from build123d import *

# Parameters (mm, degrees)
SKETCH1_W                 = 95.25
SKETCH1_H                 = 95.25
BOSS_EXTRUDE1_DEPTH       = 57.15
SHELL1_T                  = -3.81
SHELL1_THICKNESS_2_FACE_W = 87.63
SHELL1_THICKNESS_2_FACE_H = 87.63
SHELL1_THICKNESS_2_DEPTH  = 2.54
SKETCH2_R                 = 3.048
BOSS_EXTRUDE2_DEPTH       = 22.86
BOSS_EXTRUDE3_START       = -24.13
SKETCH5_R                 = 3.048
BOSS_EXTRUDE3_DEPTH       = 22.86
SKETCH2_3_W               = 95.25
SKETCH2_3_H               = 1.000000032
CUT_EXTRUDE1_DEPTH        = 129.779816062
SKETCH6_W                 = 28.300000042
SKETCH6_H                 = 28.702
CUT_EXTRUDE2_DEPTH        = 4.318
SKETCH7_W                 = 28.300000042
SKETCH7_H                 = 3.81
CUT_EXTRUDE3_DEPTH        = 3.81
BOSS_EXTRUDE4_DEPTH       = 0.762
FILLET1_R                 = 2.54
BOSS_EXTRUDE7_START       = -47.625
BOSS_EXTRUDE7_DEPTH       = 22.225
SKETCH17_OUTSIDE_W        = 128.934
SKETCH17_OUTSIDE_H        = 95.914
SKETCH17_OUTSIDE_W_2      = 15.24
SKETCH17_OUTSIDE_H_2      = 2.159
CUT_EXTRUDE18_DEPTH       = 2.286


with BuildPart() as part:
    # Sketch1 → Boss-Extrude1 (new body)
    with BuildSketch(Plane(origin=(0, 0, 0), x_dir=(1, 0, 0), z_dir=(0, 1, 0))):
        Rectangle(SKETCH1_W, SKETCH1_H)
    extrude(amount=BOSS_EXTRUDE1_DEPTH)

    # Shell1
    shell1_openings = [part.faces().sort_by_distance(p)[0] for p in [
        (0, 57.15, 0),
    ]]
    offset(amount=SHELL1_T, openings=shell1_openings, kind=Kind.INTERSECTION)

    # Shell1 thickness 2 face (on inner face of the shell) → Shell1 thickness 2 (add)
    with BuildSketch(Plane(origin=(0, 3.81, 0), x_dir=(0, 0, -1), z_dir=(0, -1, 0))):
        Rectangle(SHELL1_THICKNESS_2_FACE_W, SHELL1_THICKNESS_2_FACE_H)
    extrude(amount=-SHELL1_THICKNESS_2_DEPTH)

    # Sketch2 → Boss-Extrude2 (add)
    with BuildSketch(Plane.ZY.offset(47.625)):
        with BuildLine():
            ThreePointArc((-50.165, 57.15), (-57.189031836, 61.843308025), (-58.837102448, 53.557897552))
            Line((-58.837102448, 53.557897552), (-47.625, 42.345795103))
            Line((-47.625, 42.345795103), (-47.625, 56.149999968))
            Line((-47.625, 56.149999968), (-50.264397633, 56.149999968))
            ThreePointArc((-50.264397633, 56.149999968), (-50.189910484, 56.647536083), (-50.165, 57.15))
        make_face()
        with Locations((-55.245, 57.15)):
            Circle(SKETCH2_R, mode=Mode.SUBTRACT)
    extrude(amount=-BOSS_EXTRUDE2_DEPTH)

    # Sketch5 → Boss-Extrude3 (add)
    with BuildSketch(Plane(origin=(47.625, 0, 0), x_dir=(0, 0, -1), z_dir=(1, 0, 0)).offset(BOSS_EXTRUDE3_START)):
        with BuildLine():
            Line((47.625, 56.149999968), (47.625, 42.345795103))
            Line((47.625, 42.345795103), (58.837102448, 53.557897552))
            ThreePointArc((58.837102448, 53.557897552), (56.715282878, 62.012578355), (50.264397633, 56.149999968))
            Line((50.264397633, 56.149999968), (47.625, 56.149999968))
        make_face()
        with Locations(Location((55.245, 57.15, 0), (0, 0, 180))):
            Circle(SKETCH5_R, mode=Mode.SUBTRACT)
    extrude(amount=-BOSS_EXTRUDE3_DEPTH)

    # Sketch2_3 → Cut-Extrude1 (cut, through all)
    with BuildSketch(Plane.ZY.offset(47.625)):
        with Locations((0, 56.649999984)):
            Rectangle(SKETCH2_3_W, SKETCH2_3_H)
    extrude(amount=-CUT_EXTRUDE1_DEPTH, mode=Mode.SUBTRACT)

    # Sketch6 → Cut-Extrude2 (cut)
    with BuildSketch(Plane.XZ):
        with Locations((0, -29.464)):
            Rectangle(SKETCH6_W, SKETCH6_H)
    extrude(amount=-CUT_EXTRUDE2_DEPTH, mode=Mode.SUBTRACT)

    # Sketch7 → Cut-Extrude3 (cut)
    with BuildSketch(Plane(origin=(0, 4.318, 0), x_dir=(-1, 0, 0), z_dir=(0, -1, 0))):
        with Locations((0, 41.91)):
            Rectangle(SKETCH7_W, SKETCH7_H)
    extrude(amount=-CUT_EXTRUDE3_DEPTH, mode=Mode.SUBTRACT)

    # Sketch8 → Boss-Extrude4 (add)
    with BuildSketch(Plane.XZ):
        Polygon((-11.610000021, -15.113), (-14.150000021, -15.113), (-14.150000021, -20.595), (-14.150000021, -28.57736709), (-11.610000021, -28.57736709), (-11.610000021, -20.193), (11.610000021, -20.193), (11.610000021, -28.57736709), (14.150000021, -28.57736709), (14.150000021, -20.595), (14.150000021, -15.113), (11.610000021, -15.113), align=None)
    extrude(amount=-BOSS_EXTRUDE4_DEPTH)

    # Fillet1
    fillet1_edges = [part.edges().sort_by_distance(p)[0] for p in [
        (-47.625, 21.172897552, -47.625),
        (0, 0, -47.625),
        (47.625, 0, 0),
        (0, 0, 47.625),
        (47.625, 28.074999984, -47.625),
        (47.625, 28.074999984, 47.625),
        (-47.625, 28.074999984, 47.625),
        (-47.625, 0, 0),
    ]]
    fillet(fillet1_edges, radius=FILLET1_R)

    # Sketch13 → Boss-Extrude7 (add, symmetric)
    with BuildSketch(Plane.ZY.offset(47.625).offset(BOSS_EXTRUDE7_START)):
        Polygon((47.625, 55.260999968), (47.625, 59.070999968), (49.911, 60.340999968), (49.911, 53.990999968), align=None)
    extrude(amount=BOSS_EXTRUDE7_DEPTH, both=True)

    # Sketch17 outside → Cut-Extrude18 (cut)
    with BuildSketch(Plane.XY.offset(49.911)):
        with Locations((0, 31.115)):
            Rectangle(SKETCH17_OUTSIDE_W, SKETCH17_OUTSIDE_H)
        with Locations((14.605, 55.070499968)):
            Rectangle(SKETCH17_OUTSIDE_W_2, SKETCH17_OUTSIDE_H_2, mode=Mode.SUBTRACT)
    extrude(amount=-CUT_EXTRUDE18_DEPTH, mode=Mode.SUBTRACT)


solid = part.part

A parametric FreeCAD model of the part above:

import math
import FreeCAD as App
import Part
import Sketcher
from FreeCAD import Vector
Q = App.Units.Quantity


def edges_at(feature, points):
    """Names of the edges that pass closest to the given points."""
    edges = feature.Shape.Edges
    near = lambda p: min(range(len(edges)), key=lambda i: edges[i].distToShape(Part.Vertex(*p))[0])
    return sorted({f"Edge{near(p) + 1}" for p in points})


def faces_at(feature, points):
    """Names of the faces that lie closest to the given points."""
    faces = feature.Shape.Faces
    near = lambda p: min(range(len(faces)), key=lambda i: faces[i].distToShape(Part.Vertex(*p))[0])
    return sorted({f"Face{near(p) + 1}" for p in points})


def add_polygon(sketch, points):
    """Adds a closed chain of lines whose ends are joined by coincident constraints."""
    first, n = sketch.GeometryCount, len(points)
    for a, b in zip(points, points[1:] + points[:1]):
        sketch.addGeometry(Part.LineSegment(App.Vector(*a, 0), App.Vector(*b, 0)), False)
    for i in range(n):
        sketch.addConstraint(Sketcher.Constraint("Coincident", first + i, 2, first + (i + 1) % n, 1))

doc = App.newDocument("Part")
body = doc.addObject("PartDesign::Body", "Body")

# Sketch on XZ plane
sketch1 = body.newObject("Sketcher::SketchObject", "Sketch")
sketch1.AttachmentSupport = (doc.getObject("XZ_Plane"), [""])
sketch1.MapMode = "FlatFace"
add_polygon(sketch1, [(-47.625, -47.625), (-47.625, 47.625), (47.625, 47.625), (47.625, -47.625)])  # lines 0-3
sketch1.addConstraint(Sketcher.Constraint("Vertical", 0))
sketch1.addConstraint(Sketcher.Constraint("Horizontal", 1))
sketch1.addConstraint(Sketcher.Constraint("Vertical", 2))
sketch1.addConstraint(Sketcher.Constraint("Horizontal", 3))
sketch1.addConstraint(Sketcher.Constraint("Symmetric", 0, 2, 2, 2, -1, 1))
sketch1.addConstraint(Sketcher.Constraint("Equal", 3, 0))
sketch1.addConstraint(Sketcher.Constraint("DistanceX", 1, 1, 1, 2, Q("3.75 in")))
pad1 = body.newObject("PartDesign::Pad", "Pad")
pad1.Profile = sketch1
pad1.Length = Q("2.25 in")
pad1.Reversed = True
doc.recompute()

thickness = body.newObject("PartDesign::Thickness", "Thickness")
thickness.Base = (pad1, faces_at(pad1, [(0, 57.15, 0)]))
thickness.Value = Q("0.15 in")
thickness.Reversed = True
thickness.Join = "Intersection"

# Sketch on XZ plane
sketch2 = body.newObject("Sketcher::SketchObject", "Sketch001")
sketch2.AttachmentSupport = (doc.getObject("XZ_Plane"), [""])
sketch2.MapMode = "FlatFace"
sketch2.AttachmentOffset = App.Placement(Vector(0, 0, -0.15 * 25.4), App.Rotation())
add_polygon(sketch2, [(43.815, 43.815), (-43.815, 43.815), (-43.815, -43.815), (43.815, -43.815)])  # lines 0-3
sketch2.addConstraint(Sketcher.Constraint("Horizontal", 0))
sketch2.addConstraint(Sketcher.Constraint("Vertical", 1))
sketch2.addConstraint(Sketcher.Constraint("Horizontal", 2))
sketch2.addConstraint(Sketcher.Constraint("Vertical", 3))
sketch2.addConstraint(Sketcher.Constraint("Symmetric", 0, 2, 2, 2, -1, 1))
sketch2.addConstraint(Sketcher.Constraint("Equal", 2, 1))
sketch2.addConstraint(Sketcher.Constraint("DistanceX", 0, 2, 0, 1, Q("3.45 in")))
pad2 = body.newObject("PartDesign::Pad", "Pad001")
pad2.Profile = sketch2
pad2.Length = Q("0.1 in")
pad2.Reversed = True

# Sketch on YZ plane
sketch3 = body.newObject("Sketcher::SketchObject", "Sketch002")
sketch3.AttachmentSupport = (doc.getObject("YZ_Plane"), [""])
sketch3.MapMode = "FlatFace"
sketch3.AttachmentOffset = App.Placement(Vector(0, 0, -1.875 * 25.4), App.Rotation())
sketch3.addGeometry(Part.ArcOfCircle(Part.Circle(Vector(57.15, -55.245, 0), Vector(0, 0, 1), 5.08), math.radians(-135), math.radians(90)), False)
sketch3.addGeometry(Part.LineSegment(Vector(53.557898, -58.837102, 0), Vector(42.345795, -47.625, 0)), False)
sketch3.addGeometry(Part.LineSegment(Vector(42.345795, -47.625, 0), Vector(56.15, -47.625, 0)), False)
sketch3.addGeometry(Part.LineSegment(Vector(56.15, -47.625, 0), Vector(56.15, -50.264398, 0)), False)
sketch3.addGeometry(Part.ArcOfCircle(Part.Circle(Vector(57.15, -55.245, 0), Vector(0, 0, 1), 5.08), math.radians(90), math.radians(101.352839)), False)
sketch3.addGeometry(Part.Circle(Vector(57.15, -55.245, 0), Vector(0, 0, 1), 3.048), False)
sketch3.addConstraint(Sketcher.Constraint("Tangent", 0, 1, 1, 1))
sketch3.addConstraint(Sketcher.Constraint("Coincident", 1, 2, 2, 1))
sketch3.addConstraint(Sketcher.Constraint("Coincident", 2, 2, 3, 1))
sketch3.addConstraint(Sketcher.Constraint("Coincident", 3, 2, 4, 2))
sketch3.addConstraint(Sketcher.Constraint("Tangent", 4, 1, 0, 2))
sketch3.addConstraint(Sketcher.Constraint("Horizontal", 2))
sketch3.addConstraint(Sketcher.Constraint("Vertical", 3))
sketch3.addConstraint(Sketcher.Constraint("Coincident", 5, 3, 0, 3))
sketch3.addConstraint(Sketcher.Constraint("Equal", 0, 4))
sketch3.addConstraint(Sketcher.Constraint("Vertical", 5, 3, 4, 1))
sketch3.addConstraint(Sketcher.Constraint("Radius", 0, Q("0.2 in")))
sketch3.addConstraint(Sketcher.Constraint("Diameter", 5, Q("0.24 in")))
sketch3.addConstraint(Sketcher.Constraint("Angle", 1, Q("135 deg")))
sketch3.addConstraint(Sketcher.Constraint("DistanceY", 4, 3, 1, 2, Q("0.3 in")))
sketch3.addConstraint(Sketcher.Constraint("DistanceX", -1, 1, 0, 3, Q("2.25 in")))
sketch3.addConstraint(Sketcher.Constraint("DistanceY", 0, 3, -1, 1, Q("2.175 in")))
sketch3.addConstraint(Sketcher.Constraint("DistanceX", -1, 1, 2, 2, Q("56.15 mm")))
pad3 = body.newObject("PartDesign::Pad", "Pad002")
pad3.Profile = sketch3
pad3.Length = Q("0.9 in")

# Sketch on YZ plane
sketch4 = body.newObject("Sketcher::SketchObject", "Sketch003")
sketch4.AttachmentSupport = (doc.getObject("YZ_Plane"), [""])
sketch4.MapMode = "FlatFace"
sketch4.AttachmentOffset = App.Placement(Vector(0, 0, 0.925 * 25.4), App.Rotation())
sketch4.addGeometry(Part.LineSegment(Vector(56.15, -47.625, 0), Vector(42.345795, -47.625, 0)), False)
sketch4.addGeometry(Part.LineSegment(Vector(42.345795, -47.625, 0), Vector(53.557898, -58.837102, 0)), False)
sketch4.addGeometry(Part.ArcOfCircle(Part.Circle(Vector(57.15, -55.245, 0), Vector(0, 0, 1), 5.08), math.radians(-135), math.radians(101.352839)), False)
sketch4.addGeometry(Part.LineSegment(Vector(56.15, -50.264398, 0), Vector(56.15, -47.625, 0)), False)
sketch4.addGeometry(Part.Circle(Vector(57.15, -55.245, 0), Vector(0, 0, 1), 3.048), False)
sketch4.addConstraint(Sketcher.Constraint("Coincident", 0, 2, 1, 1))
sketch4.addConstraint(Sketcher.Constraint("Tangent", 1, 2, 2, 1))
sketch4.addConstraint(Sketcher.Constraint("Coincident", 2, 2, 3, 1))
sketch4.addConstraint(Sketcher.Constraint("Coincident", 3, 2, 0, 1))
sketch4.addConstraint(Sketcher.Constraint("Horizontal", 0))
sketch4.addConstraint(Sketcher.Constraint("Vertical", 3))
sketch4.addConstraint(Sketcher.Constraint("Coincident", 4, 3, 2, 3))
sketch4.addConstraint(Sketcher.Constraint("Radius", 2, Q("0.2 in")))
sketch4.addConstraint(Sketcher.Constraint("Diameter", 4, Q("0.24 in")))
sketch4.addConstraint(Sketcher.Constraint("Angle", 1, Q("-45 deg")))
sketch4.addConstraint(Sketcher.Constraint("DistanceY", 2, 3, 0, 2, Q("0.3 in")))
sketch4.addConstraint(Sketcher.Constraint("DistanceX", -1, 1, 2, 3, Q("2.25 in")))
sketch4.addConstraint(Sketcher.Constraint("DistanceY", 2, 3, -1, 1, Q("2.175 in")))
sketch4.addConstraint(Sketcher.Constraint("DistanceX", -1, 1, 2, 2, Q("56.15 mm")))
pad4 = body.newObject("PartDesign::Pad", "Pad003")
pad4.Profile = sketch4
pad4.Length = Q("0.9 in")
pad4.Reversed = True

# Sketch on YZ plane
sketch5 = body.newObject("Sketcher::SketchObject", "Sketch004")
sketch5.AttachmentSupport = (doc.getObject("YZ_Plane"), [""])
sketch5.MapMode = "FlatFace"
sketch5.AttachmentOffset = App.Placement(Vector(0, 0, -1.875 * 25.4), App.Rotation())
add_polygon(sketch5, [(57.15, -47.625), (56.15, -47.625), (56.15, 47.625), (57.15, 47.625)])  # lines 0-3
sketch5.addConstraint(Sketcher.Constraint("Horizontal", 0))
sketch5.addConstraint(Sketcher.Constraint("Vertical", 1))
sketch5.addConstraint(Sketcher.Constraint("Horizontal", 2))
sketch5.addConstraint(Sketcher.Constraint("Vertical", 3))
sketch5.addConstraint(Sketcher.Constraint("DistanceY", 1, 1, 1, 2, Q("3.75 in")))
sketch5.addConstraint(Sketcher.Constraint("DistanceX", -1, 1, 2, 2, Q("2.25 in")))
sketch5.addConstraint(Sketcher.Constraint("DistanceY", 0, 2, -1, 1, Q("1.875 in")))
sketch5.addConstraint(Sketcher.Constraint("DistanceX", 0, 2, 0, 1, Q("1 mm")))
pocket1 = body.newObject("PartDesign::Pocket", "Pocket")
pocket1.Profile = sketch5
pocket1.Type = "ThroughAll"
pocket1.Reversed = True

# Sketch on XZ plane
sketch6 = body.newObject("Sketcher::SketchObject", "Sketch005")
sketch6.AttachmentSupport = (doc.getObject("XZ_Plane"), [""])
sketch6.MapMode = "FlatFace"
add_polygon(sketch6, [(-14.15, -15.113), (-14.15, -43.815), (14.15, -43.815), (14.15, -15.113)])  # lines 0-3
sketch6.addConstraint(Sketcher.Constraint("Vertical", 0))
sketch6.addConstraint(Sketcher.Constraint("Horizontal", 1))
sketch6.addConstraint(Sketcher.Constraint("Vertical", 2))
sketch6.addConstraint(Sketcher.Constraint("Horizontal", 3))
sketch6.addConstraint(Sketcher.Constraint("DistanceY", 0, 2, 0, 1, Q("1.13 in")))
sketch6.addConstraint(Sketcher.Constraint("DistanceY", 0, 2, -1, 1, Q("1.725 in")))
sketch6.addConstraint(Sketcher.Constraint("DistanceX", 1, 1, 1, 2, Q("28.3 mm")))
sketch6.addConstraint(Sketcher.Constraint("DistanceX", 0, 2, -1, 1, Q("14.15 mm")))
pocket2 = body.newObject("PartDesign::Pocket", "Pocket001")
pocket2.Profile = sketch6
pocket2.Length = Q("0.17 in")

# Sketch on XZ plane
sketch7 = body.newObject("Sketcher::SketchObject", "Sketch006")
sketch7.AttachmentSupport = (doc.getObject("XZ_Plane"), [""])
sketch7.MapMode = "FlatFace"
sketch7.AttachmentOffset = App.Placement(Vector(0, 0, -0.17 * 25.4), App.Rotation())
add_polygon(sketch7, [(14.15, -43.815), (14.15, -40.005), (-14.15, -40.005), (-14.15, -43.815)])  # lines 0-3
sketch7.addConstraint(Sketcher.Constraint("Vertical", 0))
sketch7.addConstraint(Sketcher.Constraint("Horizontal", 1))
sketch7.addConstraint(Sketcher.Constraint("Vertical", 2))
sketch7.addConstraint(Sketcher.Constraint("Horizontal", 3))
sketch7.addConstraint(Sketcher.Constraint("DistanceY", 0, 1, 0, 2, Q("0.15 in")))
sketch7.addConstraint(Sketcher.Constraint("DistanceY", 0, 2, -1, 1, Q("1.575 in")))
sketch7.addConstraint(Sketcher.Constraint("DistanceX", 1, 2, 1, 1, Q("28.3 mm")))
sketch7.addConstraint(Sketcher.Constraint("DistanceX", -1, 1, 0, 2, Q("14.15 mm")))
pocket3 = body.newObject("PartDesign::Pocket", "Pocket002")
pocket3.Profile = sketch7
pocket3.Length = Q("0.15 in")

# Sketch on XZ plane
sketch8 = body.newObject("Sketcher::SketchObject", "Sketch007")
sketch8.AttachmentSupport = (doc.getObject("XZ_Plane"), [""])
sketch8.MapMode = "FlatFace"
add_polygon(sketch8, [(-14.15, -15.113), (-14.15, -28.577367), (-11.61, -28.577367), (-11.61, -20.193), (11.61, -20.193), (11.61, -28.577367), (14.15, -28.577367), (14.15, -15.113)])  # lines 0-7
sketch8.addConstraint(Sketcher.Constraint("Vertical", 0))
sketch8.addConstraint(Sketcher.Constraint("Horizontal", 1))
sketch8.addConstraint(Sketcher.Constraint("Vertical", 2))
sketch8.addConstraint(Sketcher.Constraint("Horizontal", 3))
sketch8.addConstraint(Sketcher.Constraint("Vertical", 4))
sketch8.addConstraint(Sketcher.Constraint("Horizontal", 5))
sketch8.addConstraint(Sketcher.Constraint("Vertical", 6))
sketch8.addConstraint(Sketcher.Constraint("Horizontal", 7))
sketch8.addConstraint(Sketcher.Constraint("Symmetric", 1, 2, 4, 2, -2))
sketch8.addConstraint(Sketcher.Constraint("Equal", 1, 5))
sketch8.addConstraint(Sketcher.Constraint("DistanceX", 1, 1, 1, 2, Q("0.1 in")))
sketch8.addConstraint(Sketcher.Constraint("DistanceY", 3, 2, 6, 2, Q("0.2 in")))
sketch8.addConstraint(Sketcher.Constraint("DistanceY", 2, 2, -1, 1, Q("0.795 in")))
sketch8.addConstraint(Sketcher.Constraint("DistanceX", 3, 1, 3, 2, Q("23.22 mm")))
sketch8.addConstraint(Sketcher.Constraint("DistanceY", 0, 2, 0, 1, Q("13.464367 mm")))
pad5 = body.newObject("PartDesign::Pad", "Pad004")
pad5.Profile = sketch8
pad5.Length = Q("0.03 in")
pad5.Reversed = True
doc.recompute()

fillet = body.newObject("PartDesign::Fillet", "Fillet")
fillet.Base = (pad5, edges_at(pad5, [
    (-47.625, 21.173, -47.625),
    (0, 0, -47.625),
    (47.625, 0, 0),
    (0, 0, 47.625),
    (47.625, 28.075, -47.625),
    (47.625, 28.075, 47.625),
    (-47.625, 28.075, 47.625),
    (-47.625, 0, 0),
]))
fillet.Radius = Q("0.1 in")

# Sketch on YZ plane
sketch9 = body.newObject("Sketcher::SketchObject", "Sketch008")
sketch9.AttachmentSupport = (doc.getObject("YZ_Plane"), [""])
sketch9.MapMode = "FlatFace"
add_polygon(sketch9, [(59.071, 47.625), (55.261, 47.625), (53.991, 49.911), (60.341, 49.911)])  # lines 0-3
sketch9.addConstraint(Sketcher.Constraint("Horizontal", 0))
sketch9.addConstraint(Sketcher.Constraint("Horizontal", 2))
sketch9.addConstraint(Sketcher.Constraint("Equal", 1, 3))
sketch9.addConstraint(Sketcher.Constraint("DistanceX", 0, 2, 0, 1, Q("0.15 in")))
sketch9.addConstraint(Sketcher.Constraint("DistanceX", 2, 1, 2, 2, Q("0.25 in")))
sketch9.addConstraint(Sketcher.Constraint("DistanceY", 0, 2, 1, 2, Q("0.09 in")))
sketch9.addConstraint(Sketcher.Constraint("DistanceY", -1, 1, 0, 2, Q("1.875 in")))
sketch9.addConstraint(Sketcher.Constraint("DistanceX", -1, 1, 0, 2, Q("55.261 mm")))
pad6 = body.newObject("PartDesign::Pad", "Pad005")
pad6.Profile = sketch9
pad6.Length = Q("1.75 in")
pad6.Midplane = True

# Sketch on XY plane
sketch10 = body.newObject("Sketcher::SketchObject", "Sketch009")
sketch10.AttachmentSupport = (doc.getObject("XY_Plane"), [""])
sketch10.MapMode = "FlatFace"
sketch10.AttachmentOffset = App.Placement(Vector(0, 0, 1.965 * 25.4), App.Rotation())
add_polygon(sketch10, [(-64.467, 79.072), (-64.467, -16.842), (64.467, -16.842), (64.467, 79.072)])  # lines 0-3
add_polygon(sketch10, [(22.225, 53.991), (6.985, 53.991), (6.985, 56.15), (22.225, 56.15)])  # lines 4-7
sketch10.addConstraint(Sketcher.Constraint("Vertical", 0))
sketch10.addConstraint(Sketcher.Constraint("Horizontal", 1))
sketch10.addConstraint(Sketcher.Constraint("Vertical", 2))
sketch10.addConstraint(Sketcher.Constraint("Horizontal", 3))
sketch10.addConstraint(Sketcher.Constraint("Horizontal", 4))
sketch10.addConstraint(Sketcher.Constraint("Vertical", 5))
sketch10.addConstraint(Sketcher.Constraint("Horizontal", 6))
sketch10.addConstraint(Sketcher.Constraint("Vertical", 7))
sketch10.addConstraint(Sketcher.Constraint("DistanceX", 4, 2, 4, 1, Q("0.6 in")))
sketch10.addConstraint(Sketcher.Constraint("DistanceY", 5, 1, 5, 2, Q("0.085 in")))
sketch10.addConstraint(Sketcher.Constraint("DistanceX", -1, 1, 4, 2, Q("0.275 in")))
sketch10.addConstraint(Sketcher.Constraint("DistanceX", 1, 1, 1, 2, Q("128.934 mm")))
sketch10.addConstraint(Sketcher.Constraint("DistanceY", 0, 2, 0, 1, Q("95.914 mm")))
sketch10.addConstraint(Sketcher.Constraint("DistanceX", 0, 2, -1, 1, Q("64.467 mm")))
sketch10.addConstraint(Sketcher.Constraint("DistanceY", 0, 2, -1, 1, Q("16.842 mm")))
sketch10.addConstraint(Sketcher.Constraint("DistanceY", -1, 1, 4, 2, Q("53.991 mm")))
pocket4 = body.newObject("PartDesign::Pocket", "Pocket003")
pocket4.Profile = sketch10
pocket4.Length = Q("0.09 in")

doc.recompute()
